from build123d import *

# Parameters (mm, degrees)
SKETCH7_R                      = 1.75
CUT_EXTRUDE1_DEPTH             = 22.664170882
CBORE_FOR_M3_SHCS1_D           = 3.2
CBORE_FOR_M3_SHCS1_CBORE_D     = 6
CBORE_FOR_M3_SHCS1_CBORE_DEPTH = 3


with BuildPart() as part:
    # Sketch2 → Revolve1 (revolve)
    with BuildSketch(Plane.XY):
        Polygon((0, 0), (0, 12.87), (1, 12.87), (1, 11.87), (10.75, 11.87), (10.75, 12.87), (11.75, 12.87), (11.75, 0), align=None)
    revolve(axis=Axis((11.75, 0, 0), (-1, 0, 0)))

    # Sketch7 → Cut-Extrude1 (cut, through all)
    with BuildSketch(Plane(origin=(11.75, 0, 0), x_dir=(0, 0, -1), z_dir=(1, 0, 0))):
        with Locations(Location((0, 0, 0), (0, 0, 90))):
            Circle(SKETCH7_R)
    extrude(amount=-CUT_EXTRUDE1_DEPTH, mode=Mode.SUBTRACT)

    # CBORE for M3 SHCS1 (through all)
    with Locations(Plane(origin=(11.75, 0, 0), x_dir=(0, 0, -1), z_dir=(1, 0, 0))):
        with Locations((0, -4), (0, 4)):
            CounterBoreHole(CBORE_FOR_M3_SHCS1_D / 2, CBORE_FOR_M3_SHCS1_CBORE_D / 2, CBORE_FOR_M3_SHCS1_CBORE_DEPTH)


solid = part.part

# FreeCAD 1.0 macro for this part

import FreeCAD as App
import Part
import Sketcher
from FreeCAD import Vector

doc = App.newDocument("Part")
params = doc.addObject("Spreadsheet::Sheet", "Params")
for row, (alias, value) in enumerate([
    ("sketch1_width", "1 mm"),
    ("sketch1_width2", "11.75 mm"),
    ("sketch1_height", "12.87 mm"),
    ("revolution_angle", "360 deg"),
    ("sketch2_diameter", "3.5 mm"),
    ("sketch3_diameter", "3.2 mm"),
    ("hole_diameter", "3.2 mm"),
    ("hole_cbore_diameter", "6 mm"),
    ("hole_cbore_depth", "3 mm"),
], start=1):
    params.set(f"A{row}", alias)
    params.set(f"B{row}", "=" + value)
    params.setAlias(f"B{row}", alias)

body = doc.addObject("PartDesign::Body", "Body")

# Sketch on XY plane
sketch1 = body.newObject("Sketcher::SketchObject", "Sketch")
sketch1.AttachmentSupport = (doc.getObject("XY_Plane"), [""])
sketch1.MapMode = "FlatFace"
sketch1.addGeometry([
    Part.LineSegment(Vector(0, 12.9, 0), Vector(0, 0, 0)),  # 0
    Part.LineSegment(Vector(0, 0, 0), Vector(11.8, 0, 0)),  # 1
    Part.LineSegment(Vector(11.8, 0, 0), Vector(11.8, 12.9, 0)),  # 2
    Part.LineSegment(Vector(11.8, 12.9, 0), Vector(10.8, 12.9, 0)),  # 3
    Part.LineSegment(Vector(10.8, 12.9, 0), Vector(10.8, 11.9, 0)),  # 4
    Part.LineSegment(Vector(10.8, 11.9, 0), Vector(1, 11.9, 0)),  # 5
    Part.LineSegment(Vector(1, 11.9, 0), Vector(1, 12.9, 0)),  # 6
    Part.LineSegment(Vector(1, 12.9, 0), Vector(0, 12.9, 0)),  # 7
], False)
sketch1.addConstraint([
    Sketcher.Constraint("Coincident", 0, 2, 1, 1),
    Sketcher.Constraint("Coincident", 1, 2, 2, 1),
    Sketcher.Constraint("Coincident", 2, 2, 3, 1),
    Sketcher.Constraint("Coincident", 3, 2, 4, 1),
    Sketcher.Constraint("Coincident", 4, 2, 5, 1),
    Sketcher.Constraint("Coincident", 5, 2, 6, 1),
    Sketcher.Constraint("Coincident", 6, 2, 7, 1),
    Sketcher.Constraint("Coincident", 7, 2, 0, 1),
    Sketcher.Constraint("Vertical", 0),
    Sketcher.Constraint("Horizontal", 1),
    Sketcher.Constraint("Vertical", 2),
    Sketcher.Constraint("Horizontal", 3),
    Sketcher.Constraint("Vertical", 4),
    Sketcher.Constraint("Horizontal", 5),
    Sketcher.Constraint("Vertical", 6),
    Sketcher.Constraint("Horizontal", 7),
    Sketcher.Constraint("Coincident", 0, 2, -1, 1),
    Sketcher.Constraint("Horizontal", 3, 2, 6, 2),
    Sketcher.Constraint("Equal", 3, 7),
    Sketcher.Constraint("Equal", 7, 4),
    Sketcher.Constraint("DistanceX", 3, 2, 3, 1, 1.0),
    Sketcher.Constraint("DistanceX", 1, 1, 1, 2, 11.75),
    Sketcher.Constraint("DistanceY", 0, 2, 0, 1, 12.87),
])
sketch1.setExpression("Constraints[20]", "Params.sketch1_width")
sketch1.setExpression("Constraints[21]", "Params.sketch1_width2")
sketch1.setExpression("Constraints[22]", "Params.sketch1_height")
revolution = body.newObject("PartDesign::Revolution", "Revolution")
revolution.Profile = sketch1
revolution.ReferenceAxis = (sketch1, ["H_Axis"])
revolution.setExpression("Angle", "Params.revolution_angle")

# Sketch on YZ plane
sketch2 = body.newObject("Sketcher::SketchObject", "Sketch001")
sketch2.AttachmentSupport = (doc.getObject("YZ_Plane"), [""])
sketch2.MapMode = "FlatFace"
sketch2.AttachmentOffset = App.Placement(Vector(0, 0, 11.75), App.Rotation())
sketch2.addGeometry(Part.Circle(Vector(0, 0, 0), Vector(0, 0, 1), 1.8), False)
sketch2.addConstraint([
    Sketcher.Constraint("Coincident", 0, 3, -1, 1),
    Sketcher.Constraint("Diameter", 0, 3.5),
])
sketch2.setExpression("Constraints[1]", "Params.sketch2_diameter")
pocket1 = body.newObject("PartDesign::Pocket", "Pocket")
pocket1.Profile = sketch2
pocket1.Type = "ThroughAll"

# Sketch on YZ plane
sketch3 = body.newObject("Sketcher::SketchObject", "Sketch002")
sketch3.AttachmentSupport = (doc.getObject("YZ_Plane"), [""])
sketch3.MapMode = "FlatFace"
sketch3.AttachmentOffset = App.Placement(Vector(0, 0, 11.75), App.Rotation())
sketch3.addGeometry([
    Part.Circle(Vector(-4, 0, 0), Vector(0, 0, 1), 1.6),
    Part.Circle(Vector(4, 0, 0), Vector(0, 0, 1), 1.6),
], False)
sketch3.addConstraint([
    Sketcher.Constraint("Equal", 0, 1),
    Sketcher.Constraint("Symmetric", 0, 3, 1, 3, -1, 1),
    Sketcher.Constraint("PointOnObject", 0, 3, -1),
    Sketcher.Constraint("Diameter", 0, 3.2),
    Sketcher.Constraint("DistanceX", 0, 3, -1, 1, 4.0),
])
sketch3.setExpression("Constraints[3]", "Params.sketch3_diameter")
doc.recompute()
hole = body.newObject("PartDesign::Hole", "Hole")
hole.Profile = sketch3
hole.ThreadType = "None"
hole.setExpression("Diameter", "Params.hole_diameter")
hole.DepthType = "ThroughAll"
hole.HoleCutType = "Counterbore"
hole.setExpression("HoleCutDiameter", "Params.hole_cbore_diameter")
hole.setExpression("HoleCutDepth", "Params.hole_cbore_depth")

doc.recompute()
